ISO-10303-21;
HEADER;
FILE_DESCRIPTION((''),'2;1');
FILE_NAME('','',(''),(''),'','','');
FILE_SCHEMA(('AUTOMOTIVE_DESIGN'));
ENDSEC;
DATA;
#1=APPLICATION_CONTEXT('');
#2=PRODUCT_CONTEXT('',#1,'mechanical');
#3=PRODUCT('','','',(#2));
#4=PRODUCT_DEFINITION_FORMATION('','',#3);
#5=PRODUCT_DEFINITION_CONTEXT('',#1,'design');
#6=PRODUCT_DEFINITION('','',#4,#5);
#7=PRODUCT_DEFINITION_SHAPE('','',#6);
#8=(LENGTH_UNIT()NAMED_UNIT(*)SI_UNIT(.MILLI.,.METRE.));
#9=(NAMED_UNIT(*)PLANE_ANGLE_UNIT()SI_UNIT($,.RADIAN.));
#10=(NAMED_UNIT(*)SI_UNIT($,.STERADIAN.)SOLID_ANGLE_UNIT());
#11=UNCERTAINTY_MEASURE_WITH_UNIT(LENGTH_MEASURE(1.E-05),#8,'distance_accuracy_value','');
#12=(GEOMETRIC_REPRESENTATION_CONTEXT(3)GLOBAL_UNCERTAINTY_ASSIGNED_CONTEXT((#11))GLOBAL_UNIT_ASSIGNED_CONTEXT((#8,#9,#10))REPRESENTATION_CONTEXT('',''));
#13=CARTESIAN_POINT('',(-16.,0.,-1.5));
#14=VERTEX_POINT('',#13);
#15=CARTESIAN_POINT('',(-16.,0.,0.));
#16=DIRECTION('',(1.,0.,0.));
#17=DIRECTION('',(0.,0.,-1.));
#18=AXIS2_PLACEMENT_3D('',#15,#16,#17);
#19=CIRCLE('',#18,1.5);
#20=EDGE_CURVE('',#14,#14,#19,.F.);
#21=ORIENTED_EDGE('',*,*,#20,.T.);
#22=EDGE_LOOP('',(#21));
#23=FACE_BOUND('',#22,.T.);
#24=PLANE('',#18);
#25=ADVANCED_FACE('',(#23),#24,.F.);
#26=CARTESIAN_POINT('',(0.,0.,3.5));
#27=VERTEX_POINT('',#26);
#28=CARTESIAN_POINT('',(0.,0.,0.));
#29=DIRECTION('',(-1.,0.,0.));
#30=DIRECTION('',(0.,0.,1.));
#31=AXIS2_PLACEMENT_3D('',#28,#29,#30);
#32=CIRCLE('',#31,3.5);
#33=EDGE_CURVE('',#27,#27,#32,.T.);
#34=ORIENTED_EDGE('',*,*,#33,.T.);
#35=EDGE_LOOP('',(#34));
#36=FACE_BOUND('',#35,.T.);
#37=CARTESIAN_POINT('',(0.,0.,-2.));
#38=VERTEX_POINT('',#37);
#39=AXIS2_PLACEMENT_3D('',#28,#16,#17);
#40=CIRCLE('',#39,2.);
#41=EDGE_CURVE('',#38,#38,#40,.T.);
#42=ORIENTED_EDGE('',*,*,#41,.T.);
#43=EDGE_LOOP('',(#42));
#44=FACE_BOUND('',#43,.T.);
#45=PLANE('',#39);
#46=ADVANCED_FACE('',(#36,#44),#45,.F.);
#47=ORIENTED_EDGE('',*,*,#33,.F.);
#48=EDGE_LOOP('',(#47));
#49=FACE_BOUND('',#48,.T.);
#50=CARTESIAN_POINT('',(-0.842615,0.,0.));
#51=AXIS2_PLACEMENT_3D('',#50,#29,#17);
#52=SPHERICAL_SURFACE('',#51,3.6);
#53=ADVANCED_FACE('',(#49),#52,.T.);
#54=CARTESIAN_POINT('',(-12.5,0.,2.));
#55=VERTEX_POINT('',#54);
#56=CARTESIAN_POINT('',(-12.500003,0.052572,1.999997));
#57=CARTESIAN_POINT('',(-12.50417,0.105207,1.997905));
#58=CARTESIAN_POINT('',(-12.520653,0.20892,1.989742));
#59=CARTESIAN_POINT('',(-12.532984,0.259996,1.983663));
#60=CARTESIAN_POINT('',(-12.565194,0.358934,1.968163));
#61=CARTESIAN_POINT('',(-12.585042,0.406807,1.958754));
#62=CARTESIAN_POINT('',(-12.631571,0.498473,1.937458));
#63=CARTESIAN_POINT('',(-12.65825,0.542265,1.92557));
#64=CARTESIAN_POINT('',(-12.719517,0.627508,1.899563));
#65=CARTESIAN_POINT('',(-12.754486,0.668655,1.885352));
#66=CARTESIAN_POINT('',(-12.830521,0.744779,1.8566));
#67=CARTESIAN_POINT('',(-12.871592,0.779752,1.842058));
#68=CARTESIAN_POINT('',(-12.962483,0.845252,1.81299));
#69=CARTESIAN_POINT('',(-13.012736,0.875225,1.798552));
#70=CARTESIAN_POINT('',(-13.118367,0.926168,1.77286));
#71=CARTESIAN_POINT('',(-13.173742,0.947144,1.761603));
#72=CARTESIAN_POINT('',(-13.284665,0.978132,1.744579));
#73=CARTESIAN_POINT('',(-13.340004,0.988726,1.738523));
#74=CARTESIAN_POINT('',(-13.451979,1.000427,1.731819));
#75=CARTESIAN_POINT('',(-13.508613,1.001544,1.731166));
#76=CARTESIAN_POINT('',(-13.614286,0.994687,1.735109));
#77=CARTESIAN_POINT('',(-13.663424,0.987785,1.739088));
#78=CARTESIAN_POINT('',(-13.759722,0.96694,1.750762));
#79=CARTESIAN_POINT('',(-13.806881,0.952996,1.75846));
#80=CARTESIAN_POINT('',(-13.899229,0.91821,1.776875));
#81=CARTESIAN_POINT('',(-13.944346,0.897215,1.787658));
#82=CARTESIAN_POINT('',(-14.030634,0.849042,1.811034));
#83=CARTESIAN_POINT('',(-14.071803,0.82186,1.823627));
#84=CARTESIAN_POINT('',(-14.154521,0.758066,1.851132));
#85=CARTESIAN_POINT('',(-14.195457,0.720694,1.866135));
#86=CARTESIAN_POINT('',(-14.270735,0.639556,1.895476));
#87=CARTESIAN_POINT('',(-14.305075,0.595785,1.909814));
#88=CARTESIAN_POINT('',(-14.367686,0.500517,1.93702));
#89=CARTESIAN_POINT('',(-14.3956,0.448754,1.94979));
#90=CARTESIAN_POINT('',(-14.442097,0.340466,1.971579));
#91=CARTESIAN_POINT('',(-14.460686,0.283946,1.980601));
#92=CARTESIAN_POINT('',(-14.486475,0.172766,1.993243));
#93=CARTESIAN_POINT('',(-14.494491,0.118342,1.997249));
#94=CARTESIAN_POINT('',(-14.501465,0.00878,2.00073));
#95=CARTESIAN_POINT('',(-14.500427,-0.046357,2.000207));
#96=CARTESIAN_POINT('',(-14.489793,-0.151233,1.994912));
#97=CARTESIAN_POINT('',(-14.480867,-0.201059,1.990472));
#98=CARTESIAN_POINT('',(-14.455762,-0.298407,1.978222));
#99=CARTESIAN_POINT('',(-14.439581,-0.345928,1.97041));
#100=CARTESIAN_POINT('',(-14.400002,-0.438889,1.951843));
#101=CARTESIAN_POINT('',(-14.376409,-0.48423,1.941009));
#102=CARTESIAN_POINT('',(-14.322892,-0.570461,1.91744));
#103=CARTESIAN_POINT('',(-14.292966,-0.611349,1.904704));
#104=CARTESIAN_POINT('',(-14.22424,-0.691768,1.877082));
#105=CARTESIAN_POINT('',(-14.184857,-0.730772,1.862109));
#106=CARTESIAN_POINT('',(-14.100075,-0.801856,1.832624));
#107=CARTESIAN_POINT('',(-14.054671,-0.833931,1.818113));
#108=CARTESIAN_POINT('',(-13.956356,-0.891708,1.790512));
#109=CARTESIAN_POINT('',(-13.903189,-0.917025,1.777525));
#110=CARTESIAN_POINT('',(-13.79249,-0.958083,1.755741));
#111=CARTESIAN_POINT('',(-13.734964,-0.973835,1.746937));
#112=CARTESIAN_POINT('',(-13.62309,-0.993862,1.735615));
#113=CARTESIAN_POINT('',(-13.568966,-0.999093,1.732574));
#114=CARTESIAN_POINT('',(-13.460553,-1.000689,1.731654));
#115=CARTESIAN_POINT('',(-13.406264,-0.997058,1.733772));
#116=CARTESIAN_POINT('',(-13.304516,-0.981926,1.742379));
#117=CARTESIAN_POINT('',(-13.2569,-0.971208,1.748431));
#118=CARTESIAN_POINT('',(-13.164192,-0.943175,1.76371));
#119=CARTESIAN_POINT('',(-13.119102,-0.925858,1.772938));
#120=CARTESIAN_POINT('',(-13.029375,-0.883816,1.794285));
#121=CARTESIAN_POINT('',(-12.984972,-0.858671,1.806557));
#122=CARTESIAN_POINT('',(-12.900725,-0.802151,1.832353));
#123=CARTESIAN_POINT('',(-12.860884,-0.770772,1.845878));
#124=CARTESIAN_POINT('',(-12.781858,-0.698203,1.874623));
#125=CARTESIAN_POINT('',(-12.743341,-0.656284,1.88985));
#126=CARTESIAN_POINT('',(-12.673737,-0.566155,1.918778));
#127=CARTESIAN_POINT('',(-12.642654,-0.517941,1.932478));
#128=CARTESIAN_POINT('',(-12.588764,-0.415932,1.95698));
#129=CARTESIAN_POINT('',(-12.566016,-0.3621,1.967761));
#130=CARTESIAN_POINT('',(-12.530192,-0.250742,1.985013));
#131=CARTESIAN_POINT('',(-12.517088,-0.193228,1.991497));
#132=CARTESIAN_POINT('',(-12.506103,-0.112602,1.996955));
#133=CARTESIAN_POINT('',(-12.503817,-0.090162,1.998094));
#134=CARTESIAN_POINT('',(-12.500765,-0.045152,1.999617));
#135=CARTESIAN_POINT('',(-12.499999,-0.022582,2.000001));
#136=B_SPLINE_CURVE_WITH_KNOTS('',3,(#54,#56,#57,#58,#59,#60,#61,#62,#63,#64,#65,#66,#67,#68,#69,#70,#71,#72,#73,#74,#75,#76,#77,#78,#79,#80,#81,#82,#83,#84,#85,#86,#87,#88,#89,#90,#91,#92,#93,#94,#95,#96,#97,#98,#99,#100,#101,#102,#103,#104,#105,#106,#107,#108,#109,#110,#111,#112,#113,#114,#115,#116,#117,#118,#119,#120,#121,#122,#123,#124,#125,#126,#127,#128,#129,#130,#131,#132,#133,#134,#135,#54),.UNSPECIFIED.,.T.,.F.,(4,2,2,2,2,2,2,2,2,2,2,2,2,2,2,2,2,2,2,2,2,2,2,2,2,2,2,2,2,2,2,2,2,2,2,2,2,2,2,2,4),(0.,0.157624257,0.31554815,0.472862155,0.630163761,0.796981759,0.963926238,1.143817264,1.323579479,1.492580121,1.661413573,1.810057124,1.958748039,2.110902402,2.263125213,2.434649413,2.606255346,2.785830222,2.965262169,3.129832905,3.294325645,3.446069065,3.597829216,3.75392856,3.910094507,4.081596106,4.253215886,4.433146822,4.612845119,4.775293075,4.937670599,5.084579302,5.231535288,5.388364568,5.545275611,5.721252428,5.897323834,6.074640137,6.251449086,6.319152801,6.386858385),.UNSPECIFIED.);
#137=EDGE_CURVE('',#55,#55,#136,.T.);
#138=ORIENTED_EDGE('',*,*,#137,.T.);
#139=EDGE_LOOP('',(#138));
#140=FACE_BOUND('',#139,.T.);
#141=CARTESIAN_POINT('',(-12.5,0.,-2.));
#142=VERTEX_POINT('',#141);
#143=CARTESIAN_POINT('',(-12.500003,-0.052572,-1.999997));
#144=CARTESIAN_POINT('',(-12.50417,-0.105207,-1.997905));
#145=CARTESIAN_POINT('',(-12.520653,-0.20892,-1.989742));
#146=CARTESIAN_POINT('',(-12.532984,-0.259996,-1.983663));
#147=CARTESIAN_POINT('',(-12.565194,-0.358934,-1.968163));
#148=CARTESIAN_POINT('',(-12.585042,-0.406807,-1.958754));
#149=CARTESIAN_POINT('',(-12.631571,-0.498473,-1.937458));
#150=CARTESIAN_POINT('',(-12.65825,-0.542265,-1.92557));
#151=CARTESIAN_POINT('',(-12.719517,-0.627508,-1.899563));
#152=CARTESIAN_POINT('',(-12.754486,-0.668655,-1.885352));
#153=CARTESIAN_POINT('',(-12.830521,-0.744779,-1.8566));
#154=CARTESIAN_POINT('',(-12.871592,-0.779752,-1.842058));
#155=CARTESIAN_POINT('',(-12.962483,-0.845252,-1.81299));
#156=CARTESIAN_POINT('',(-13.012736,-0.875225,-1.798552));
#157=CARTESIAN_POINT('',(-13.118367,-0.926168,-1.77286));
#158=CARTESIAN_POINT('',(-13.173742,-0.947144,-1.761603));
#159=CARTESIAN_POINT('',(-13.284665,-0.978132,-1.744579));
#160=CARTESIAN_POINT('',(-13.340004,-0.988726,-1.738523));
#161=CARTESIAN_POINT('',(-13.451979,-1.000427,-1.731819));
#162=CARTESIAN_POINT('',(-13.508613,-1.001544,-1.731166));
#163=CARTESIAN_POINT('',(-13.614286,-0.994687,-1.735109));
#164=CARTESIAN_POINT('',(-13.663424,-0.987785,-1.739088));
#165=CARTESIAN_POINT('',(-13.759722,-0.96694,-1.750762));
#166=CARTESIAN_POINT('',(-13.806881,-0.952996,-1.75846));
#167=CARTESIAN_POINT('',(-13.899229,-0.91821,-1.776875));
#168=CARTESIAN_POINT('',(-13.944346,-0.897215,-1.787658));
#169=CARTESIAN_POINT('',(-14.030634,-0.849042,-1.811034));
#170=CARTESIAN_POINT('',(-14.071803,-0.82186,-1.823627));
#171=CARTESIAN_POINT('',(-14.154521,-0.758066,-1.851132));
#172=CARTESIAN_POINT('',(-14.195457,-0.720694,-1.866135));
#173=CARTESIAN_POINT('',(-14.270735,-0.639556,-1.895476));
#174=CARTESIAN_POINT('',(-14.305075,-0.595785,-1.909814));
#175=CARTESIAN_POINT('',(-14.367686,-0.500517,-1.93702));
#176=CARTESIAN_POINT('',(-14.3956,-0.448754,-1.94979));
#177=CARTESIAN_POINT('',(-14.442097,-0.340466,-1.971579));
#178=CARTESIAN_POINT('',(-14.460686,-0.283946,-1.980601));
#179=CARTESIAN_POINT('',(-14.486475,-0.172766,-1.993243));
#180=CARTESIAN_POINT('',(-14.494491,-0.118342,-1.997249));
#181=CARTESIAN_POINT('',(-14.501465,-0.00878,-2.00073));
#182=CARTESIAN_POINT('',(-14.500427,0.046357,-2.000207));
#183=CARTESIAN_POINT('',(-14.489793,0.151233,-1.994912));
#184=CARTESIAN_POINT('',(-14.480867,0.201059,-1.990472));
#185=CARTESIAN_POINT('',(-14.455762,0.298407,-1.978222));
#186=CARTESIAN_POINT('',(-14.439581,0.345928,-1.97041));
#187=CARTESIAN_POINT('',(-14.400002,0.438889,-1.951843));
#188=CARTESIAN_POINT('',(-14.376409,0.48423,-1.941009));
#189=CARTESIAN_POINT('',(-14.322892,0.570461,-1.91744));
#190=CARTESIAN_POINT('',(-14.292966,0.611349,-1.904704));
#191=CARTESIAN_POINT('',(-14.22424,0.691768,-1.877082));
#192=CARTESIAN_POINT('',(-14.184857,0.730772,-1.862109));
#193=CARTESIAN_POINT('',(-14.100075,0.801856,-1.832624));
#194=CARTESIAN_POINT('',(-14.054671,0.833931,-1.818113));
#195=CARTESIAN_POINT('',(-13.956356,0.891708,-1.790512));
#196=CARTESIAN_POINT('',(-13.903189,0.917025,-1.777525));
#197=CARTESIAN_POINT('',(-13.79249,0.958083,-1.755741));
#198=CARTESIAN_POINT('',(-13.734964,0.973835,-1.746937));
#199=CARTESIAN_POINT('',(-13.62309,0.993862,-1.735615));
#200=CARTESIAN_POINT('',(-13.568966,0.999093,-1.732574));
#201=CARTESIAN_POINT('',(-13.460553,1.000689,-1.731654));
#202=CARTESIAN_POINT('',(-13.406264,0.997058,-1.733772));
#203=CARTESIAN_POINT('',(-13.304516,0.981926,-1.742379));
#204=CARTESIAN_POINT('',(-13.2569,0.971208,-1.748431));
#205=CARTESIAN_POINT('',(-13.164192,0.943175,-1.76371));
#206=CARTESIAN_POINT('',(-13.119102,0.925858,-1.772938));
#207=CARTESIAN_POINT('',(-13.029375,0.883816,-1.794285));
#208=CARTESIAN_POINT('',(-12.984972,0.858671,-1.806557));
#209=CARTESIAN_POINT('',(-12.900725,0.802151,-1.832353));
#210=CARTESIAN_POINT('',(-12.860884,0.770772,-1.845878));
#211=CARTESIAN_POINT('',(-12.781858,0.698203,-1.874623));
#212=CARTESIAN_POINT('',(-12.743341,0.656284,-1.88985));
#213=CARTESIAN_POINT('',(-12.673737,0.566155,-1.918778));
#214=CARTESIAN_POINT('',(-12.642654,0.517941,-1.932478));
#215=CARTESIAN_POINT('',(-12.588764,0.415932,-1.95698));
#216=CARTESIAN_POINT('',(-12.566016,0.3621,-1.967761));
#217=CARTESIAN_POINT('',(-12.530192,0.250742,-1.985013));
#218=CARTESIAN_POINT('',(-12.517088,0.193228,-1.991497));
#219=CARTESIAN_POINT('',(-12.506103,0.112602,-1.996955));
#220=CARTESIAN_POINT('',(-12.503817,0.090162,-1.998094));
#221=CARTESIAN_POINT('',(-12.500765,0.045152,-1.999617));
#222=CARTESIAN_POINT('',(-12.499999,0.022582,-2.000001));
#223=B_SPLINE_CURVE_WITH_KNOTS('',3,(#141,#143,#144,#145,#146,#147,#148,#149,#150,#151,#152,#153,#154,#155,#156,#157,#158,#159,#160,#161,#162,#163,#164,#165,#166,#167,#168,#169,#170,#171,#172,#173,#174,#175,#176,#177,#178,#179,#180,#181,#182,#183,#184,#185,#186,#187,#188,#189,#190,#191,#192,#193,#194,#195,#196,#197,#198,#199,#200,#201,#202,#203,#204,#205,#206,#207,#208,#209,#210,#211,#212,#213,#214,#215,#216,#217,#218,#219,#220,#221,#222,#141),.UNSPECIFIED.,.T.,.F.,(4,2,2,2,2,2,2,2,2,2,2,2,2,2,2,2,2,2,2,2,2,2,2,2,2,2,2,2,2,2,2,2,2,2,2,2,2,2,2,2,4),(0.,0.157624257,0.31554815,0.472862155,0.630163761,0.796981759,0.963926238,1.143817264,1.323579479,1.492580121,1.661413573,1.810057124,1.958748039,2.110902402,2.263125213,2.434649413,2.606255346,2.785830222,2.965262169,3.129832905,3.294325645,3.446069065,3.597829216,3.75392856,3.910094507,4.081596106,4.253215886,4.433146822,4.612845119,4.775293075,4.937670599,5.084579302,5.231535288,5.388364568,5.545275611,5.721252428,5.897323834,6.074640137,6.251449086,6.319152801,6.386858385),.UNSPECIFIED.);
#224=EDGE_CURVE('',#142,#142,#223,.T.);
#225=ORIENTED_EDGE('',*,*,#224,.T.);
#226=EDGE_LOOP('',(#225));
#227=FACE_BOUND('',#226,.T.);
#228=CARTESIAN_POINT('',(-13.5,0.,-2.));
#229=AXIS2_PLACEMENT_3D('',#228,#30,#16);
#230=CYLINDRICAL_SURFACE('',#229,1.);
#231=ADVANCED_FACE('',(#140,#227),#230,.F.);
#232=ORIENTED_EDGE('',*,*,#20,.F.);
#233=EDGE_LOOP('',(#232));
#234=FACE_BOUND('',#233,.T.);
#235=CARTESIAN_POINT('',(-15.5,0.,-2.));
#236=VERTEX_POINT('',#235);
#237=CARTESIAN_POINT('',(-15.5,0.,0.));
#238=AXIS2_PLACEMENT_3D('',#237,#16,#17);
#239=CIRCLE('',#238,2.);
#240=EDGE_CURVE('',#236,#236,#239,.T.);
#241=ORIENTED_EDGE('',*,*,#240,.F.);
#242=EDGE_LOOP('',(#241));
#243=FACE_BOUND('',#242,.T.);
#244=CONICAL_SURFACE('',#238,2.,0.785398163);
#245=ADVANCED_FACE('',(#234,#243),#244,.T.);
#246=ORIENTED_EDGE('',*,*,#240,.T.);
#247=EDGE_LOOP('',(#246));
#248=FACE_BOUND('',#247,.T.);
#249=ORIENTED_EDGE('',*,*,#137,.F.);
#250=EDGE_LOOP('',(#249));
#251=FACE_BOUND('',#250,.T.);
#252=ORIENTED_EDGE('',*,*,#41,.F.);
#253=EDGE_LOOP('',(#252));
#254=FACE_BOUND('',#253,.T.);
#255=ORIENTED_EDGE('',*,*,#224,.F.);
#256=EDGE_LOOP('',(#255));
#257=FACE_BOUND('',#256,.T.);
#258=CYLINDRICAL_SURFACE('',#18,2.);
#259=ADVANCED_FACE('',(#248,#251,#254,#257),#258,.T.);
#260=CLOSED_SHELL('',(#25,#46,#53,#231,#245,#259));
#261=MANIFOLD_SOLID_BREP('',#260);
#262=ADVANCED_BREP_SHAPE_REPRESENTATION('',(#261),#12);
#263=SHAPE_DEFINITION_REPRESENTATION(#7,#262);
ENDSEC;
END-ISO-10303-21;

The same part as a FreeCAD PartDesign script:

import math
import FreeCAD as App
import Part
import Sketcher


def edges_at(feature, points):
    """Names of the edges that pass closest to the given points."""
    edges = feature.Shape.Edges
    near = lambda p: min(range(len(edges)), key=lambda i: edges[i].distToShape(Part.Vertex(*p))[0])
    return sorted({f"Edge{near(p) + 1}" for p in points})

doc = App.newDocument("Part")
body = doc.addObject("PartDesign::Body", "Body")

# Sketch on YZ plane
sketch1 = body.newObject("Sketcher::SketchObject", "Sketch")
sketch1.AttachmentSupport = (doc.getObject("YZ_Plane"), [""])
sketch1.MapMode = "FlatFace"
sketch1.addGeometry(Part.Circle(App.Vector(0, 0, 0), App.Vector(0, 0, 1), 2), False)
sketch1.addConstraint([
    Sketcher.Constraint("Coincident", 0, 3, -1, 1),
    Sketcher.Constraint("Diameter", 0, 4.0),
])
pad1 = body.newObject("PartDesign::Pad", "Pad")
pad1.Profile = sketch1
pad1.Length = 16
pad1.Reversed = True

# Sketch on XY plane
sketch2 = body.newObject("Sketcher::SketchObject", "Sketch001")
sketch2.AttachmentSupport = (doc.getObject("XY_Plane"), [""])
sketch2.MapMode = "FlatFace"
sketch2.addGeometry(Part.Circle(App.Vector(-13.5, 0, 0), App.Vector(0, 0, 1), 1), False)
sketch2.addConstraint([
    Sketcher.Constraint("PointOnObject", 0, 3, -1),
    Sketcher.Constraint("Diameter", 0, 2.0),
    Sketcher.Constraint("DistanceX", 0, 3, -1, 1, 13.5),
])
pocket1 = body.newObject("PartDesign::Pocket", "Pocket")
pocket1.Profile = sketch2
pocket1.Type = "ThroughAll"
pocket1.Midplane = True

# Sketch on XZ plane
sketch3 = body.newObject("Sketcher::SketchObject", "Sketch002")
sketch3.AttachmentSupport = (doc.getObject("XZ_Plane"), [""])
sketch3.MapMode = "FlatFace"
sketch3.addGeometry([
    Part.LineSegment(App.Vector(0, 0, 0), App.Vector(2.8, 0, 0)),
    Part.ArcOfCircle(Part.Circle(App.Vector(-0.8, 0, 0), App.Vector(0, 0, 1), 3.6), math.radians(-76), math.radians(0)),
    Part.LineSegment(App.Vector(0, -3.5, 0), App.Vector(0, 0, 0)),
], False)
sketch3.addConstraint([
    Sketcher.Constraint("Coincident", 0, 2, 1, 2),
    Sketcher.Constraint("Coincident", 1, 1, 2, 1),
    Sketcher.Constraint("Coincident", 2, 2, 0, 1),
    Sketcher.Constraint("Horizontal", 0),
    Sketcher.Constraint("Vertical", 2),
    Sketcher.Constraint("Coincident", 2, 2, -1, 1),
    Sketcher.Constraint("PointOnObject", 1, 3, -1),
    Sketcher.Constraint("Radius", 1, 3.6),
    Sketcher.Constraint("DistanceY", 2, 1, 2, 2, 3.5),
])
revolution = body.newObject("PartDesign::Revolution", "Revolution")
revolution.Profile = sketch3
revolution.ReferenceAxis = (sketch3, ["H_Axis"])
revolution.Angle = 360
doc.recompute()

chamfer = body.newObject("PartDesign::Chamfer", "Chamfer")
chamfer.Base = (revolution, edges_at(revolution, [(-16, 0, 2)]))
chamfer.Size = 0.5

doc.recompute()
